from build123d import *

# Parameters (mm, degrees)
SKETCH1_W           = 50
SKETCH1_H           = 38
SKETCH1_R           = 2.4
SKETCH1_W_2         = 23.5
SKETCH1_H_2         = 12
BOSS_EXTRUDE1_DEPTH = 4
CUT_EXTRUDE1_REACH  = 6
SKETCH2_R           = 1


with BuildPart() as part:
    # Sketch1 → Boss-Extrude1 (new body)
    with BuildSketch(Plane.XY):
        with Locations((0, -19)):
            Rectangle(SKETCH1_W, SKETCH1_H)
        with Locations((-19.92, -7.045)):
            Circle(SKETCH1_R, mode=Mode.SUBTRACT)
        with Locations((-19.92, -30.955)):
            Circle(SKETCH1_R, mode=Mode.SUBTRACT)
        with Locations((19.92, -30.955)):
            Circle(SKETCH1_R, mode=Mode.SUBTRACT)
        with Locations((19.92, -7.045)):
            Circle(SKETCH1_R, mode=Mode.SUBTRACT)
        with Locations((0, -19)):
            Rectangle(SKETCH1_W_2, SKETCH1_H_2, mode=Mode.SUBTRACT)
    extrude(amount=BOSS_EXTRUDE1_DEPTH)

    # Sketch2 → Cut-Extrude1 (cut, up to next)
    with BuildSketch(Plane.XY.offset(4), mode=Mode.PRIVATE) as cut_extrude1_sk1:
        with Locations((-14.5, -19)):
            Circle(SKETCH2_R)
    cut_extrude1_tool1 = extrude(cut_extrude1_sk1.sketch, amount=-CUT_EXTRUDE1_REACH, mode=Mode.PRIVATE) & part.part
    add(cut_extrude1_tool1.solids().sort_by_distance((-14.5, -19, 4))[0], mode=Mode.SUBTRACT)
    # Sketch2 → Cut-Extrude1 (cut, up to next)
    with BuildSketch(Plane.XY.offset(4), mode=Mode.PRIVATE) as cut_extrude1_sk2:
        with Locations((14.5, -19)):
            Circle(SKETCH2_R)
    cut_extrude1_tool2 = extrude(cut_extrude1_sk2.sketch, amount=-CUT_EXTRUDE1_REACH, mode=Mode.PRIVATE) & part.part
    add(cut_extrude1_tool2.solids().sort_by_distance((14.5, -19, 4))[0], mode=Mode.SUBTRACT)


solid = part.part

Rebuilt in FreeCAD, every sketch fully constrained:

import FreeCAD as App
import Part
import Sketcher

V = App.Vector
Q = App.Units.Quantity

doc = App.newDocument("Part")
body = doc.addObject("PartDesign::Body", "Body")

# Sketch on XY plane
sketch1 = body.newObject("Sketcher::SketchObject", "Sketch")
sketch1.AttachmentSupport = (doc.getObject("XY_Plane"), [""])
sketch1.MapMode = "FlatFace"
sketch1.addGeometry(Part.LineSegment(V(-25, 0, 0), V(-25, -38, 0)), False)
sketch1.addGeometry(Part.LineSegment(V(-25, -38, 0), V(25, -38, 0)), False)
sketch1.addGeometry(Part.LineSegment(V(25, -38, 0), V(25, 0, 0)), False)
sketch1.addGeometry(Part.LineSegment(V(25, 0, 0), V(-25, 0, 0)), False)
sketch1.addGeometry(Part.Circle(V(-19.9, -31, 0), V(0, 0, 1), 2.4), False)
sketch1.addGeometry(Part.Circle(V(19.9, -31, 0), V(0, 0, 1), 2.4), False)
sketch1.addGeometry(Part.Circle(V(-19.9, -7, 0), V(0, 0, 1), 2.4), False)
sketch1.addGeometry(Part.LineSegment(V(11.8, -25, 0), V(-11.8, -25, 0)), False)
sketch1.addGeometry(Part.LineSegment(V(-11.8, -25, 0), V(-11.8, -13, 0)), False)
sketch1.addGeometry(Part.LineSegment(V(-11.8, -13, 0), V(11.8, -13, 0)), False)
sketch1.addGeometry(Part.LineSegment(V(11.8, -13, 0), V(11.8, -25, 0)), False)
sketch1.addGeometry(Part.Circle(V(19.9, -7, 0), V(0, 0, 1), 2.4), False)
sketch1.addConstraint(Sketcher.Constraint("Coincident", 0, 2, 1, 1))
sketch1.addConstraint(Sketcher.Constraint("Coincident", 1, 2, 2, 1))
sketch1.addConstraint(Sketcher.Constraint("Coincident", 2, 2, 3, 1))
sketch1.addConstraint(Sketcher.Constraint("Coincident", 3, 2, 0, 1))
sketch1.addConstraint(Sketcher.Constraint("Coincident", 7, 2, 8, 1))
sketch1.addConstraint(Sketcher.Constraint("Coincident", 8, 2, 9, 1))
sketch1.addConstraint(Sketcher.Constraint("Coincident", 9, 2, 10, 1))
sketch1.addConstraint(Sketcher.Constraint("Coincident", 10, 2, 7, 1))
sketch1.addConstraint(Sketcher.Constraint("Vertical", 0))
sketch1.addConstraint(Sketcher.Constraint("Horizontal", 1))
sketch1.addConstraint(Sketcher.Constraint("Vertical", 2))
sketch1.addConstraint(Sketcher.Constraint("Horizontal", 3))
sketch1.addConstraint(Sketcher.Constraint("Horizontal", 7))
sketch1.addConstraint(Sketcher.Constraint("Vertical", 8))
sketch1.addConstraint(Sketcher.Constraint("Horizontal", 9))
sketch1.addConstraint(Sketcher.Constraint("Vertical", 10))
sketch1.addConstraint(Sketcher.Constraint("Equal", 4, 5))
sketch1.addConstraint(Sketcher.Constraint("Equal", 5, 6))
sketch1.addConstraint(Sketcher.Constraint("Equal", 6, 11))
sketch1.addConstraint(Sketcher.Constraint("Symmetric", 2, 2, 3, 2, -1, 1))
sketch1.addConstraint(Sketcher.Constraint("Symmetric", 4, 3, 5, 3, -2))
sketch1.addConstraint(Sketcher.Constraint("Symmetric", 6, 3, 11, 3, -2))
sketch1.addConstraint(Sketcher.Constraint("Vertical", 4, 3, 6, 3))
sketch1.addConstraint(Sketcher.Constraint("Diameter", 4, Q("4.8 mm")))
sketch1.addConstraint(Sketcher.Constraint("DistanceX", 1, 1, 1, 2, Q("50 mm")))
sketch1.addConstraint(Sketcher.Constraint("DistanceY", 0, 2, 0, 1, Q("38 mm")))
sketch1.addConstraint(Sketcher.Constraint("DistanceY", 8, 1, 8, 2, Q("12 mm")))
sketch1.addConstraint(Sketcher.Constraint("DistanceX", 7, 2, 7, 1, Q("23.5 mm")))
sketch1.addConstraint(Sketcher.Constraint("DistanceY", 7, 2, -1, 1, Q("25 mm")))
sketch1.addConstraint(Sketcher.Constraint("DistanceX", 4, 3, -1, 1, Q("19.92 mm")))
sketch1.addConstraint(Sketcher.Constraint("DistanceX", 7, 2, -1, 1, Q("11.75 mm")))
sketch1.addConstraint(Sketcher.Constraint("DistanceY", 4, 3, 6, 3, Q("23.91 mm")))
sketch1.addConstraint(Sketcher.Constraint("DistanceY", 4, 3, -1, 1, Q("30.955 mm")))
pad1 = body.newObject("PartDesign::Pad", "Pad")
pad1.Profile = sketch1
pad1.Length = 4

# Sketch on XY plane
sketch2 = body.newObject("Sketcher::SketchObject", "Sketch001")
sketch2.AttachmentSupport = (doc.getObject("XY_Plane"), [""])
sketch2.MapMode = "FlatFace"
sketch2.AttachmentOffset = App.Placement(V(0, 0, 4), App.Rotation())
sketch2.addGeometry(Part.Circle(V(-14.5, -19, 0), V(0, 0, 1), 1), False)
sketch2.addConstraint(Sketcher.Constraint("Diameter", 0, Q("2 mm")))
sketch2.addConstraint(Sketcher.Constraint("DistanceY", 0, 3, -1, 1, Q("19 mm")))
sketch2.addConstraint(Sketcher.Constraint("DistanceX", 0, 3, -1, 1, Q("14.5 mm")))
pocket1 = body.newObject("PartDesign::Pocket", "Pocket")
pocket1.Profile = sketch2
pocket1.Type = "UpToFirst"

# Sketch on XY plane
sketch3 = body.newObject("Sketcher::SketchObject", "Sketch002")
sketch3.AttachmentSupport = (doc.getObject("XY_Plane"), [""])
sketch3.MapMode = "FlatFace"
sketch3.AttachmentOffset = App.Placement(V(0, 0, 4), App.Rotation())
sketch3.addGeometry(Part.Circle(V(14.5, -19, 0), V(0, 0, 1), 1), False)
sketch3.addConstraint(Sketcher.Constraint("Diameter", 0, Q("2 mm")))
sketch3.addConstraint(Sketcher.Constraint("DistanceY", 0, 3, -1, 1, Q("19 mm")))
sketch3.addConstraint(Sketcher.Constraint("DistanceX", -1, 1, 0, 3, Q("14.5 mm")))
pocket2 = body.newObject("PartDesign::Pocket", "Pocket001")
pocket2.Profile = sketch3
pocket2.Type = "UpToFirst"

doc.recompute()
